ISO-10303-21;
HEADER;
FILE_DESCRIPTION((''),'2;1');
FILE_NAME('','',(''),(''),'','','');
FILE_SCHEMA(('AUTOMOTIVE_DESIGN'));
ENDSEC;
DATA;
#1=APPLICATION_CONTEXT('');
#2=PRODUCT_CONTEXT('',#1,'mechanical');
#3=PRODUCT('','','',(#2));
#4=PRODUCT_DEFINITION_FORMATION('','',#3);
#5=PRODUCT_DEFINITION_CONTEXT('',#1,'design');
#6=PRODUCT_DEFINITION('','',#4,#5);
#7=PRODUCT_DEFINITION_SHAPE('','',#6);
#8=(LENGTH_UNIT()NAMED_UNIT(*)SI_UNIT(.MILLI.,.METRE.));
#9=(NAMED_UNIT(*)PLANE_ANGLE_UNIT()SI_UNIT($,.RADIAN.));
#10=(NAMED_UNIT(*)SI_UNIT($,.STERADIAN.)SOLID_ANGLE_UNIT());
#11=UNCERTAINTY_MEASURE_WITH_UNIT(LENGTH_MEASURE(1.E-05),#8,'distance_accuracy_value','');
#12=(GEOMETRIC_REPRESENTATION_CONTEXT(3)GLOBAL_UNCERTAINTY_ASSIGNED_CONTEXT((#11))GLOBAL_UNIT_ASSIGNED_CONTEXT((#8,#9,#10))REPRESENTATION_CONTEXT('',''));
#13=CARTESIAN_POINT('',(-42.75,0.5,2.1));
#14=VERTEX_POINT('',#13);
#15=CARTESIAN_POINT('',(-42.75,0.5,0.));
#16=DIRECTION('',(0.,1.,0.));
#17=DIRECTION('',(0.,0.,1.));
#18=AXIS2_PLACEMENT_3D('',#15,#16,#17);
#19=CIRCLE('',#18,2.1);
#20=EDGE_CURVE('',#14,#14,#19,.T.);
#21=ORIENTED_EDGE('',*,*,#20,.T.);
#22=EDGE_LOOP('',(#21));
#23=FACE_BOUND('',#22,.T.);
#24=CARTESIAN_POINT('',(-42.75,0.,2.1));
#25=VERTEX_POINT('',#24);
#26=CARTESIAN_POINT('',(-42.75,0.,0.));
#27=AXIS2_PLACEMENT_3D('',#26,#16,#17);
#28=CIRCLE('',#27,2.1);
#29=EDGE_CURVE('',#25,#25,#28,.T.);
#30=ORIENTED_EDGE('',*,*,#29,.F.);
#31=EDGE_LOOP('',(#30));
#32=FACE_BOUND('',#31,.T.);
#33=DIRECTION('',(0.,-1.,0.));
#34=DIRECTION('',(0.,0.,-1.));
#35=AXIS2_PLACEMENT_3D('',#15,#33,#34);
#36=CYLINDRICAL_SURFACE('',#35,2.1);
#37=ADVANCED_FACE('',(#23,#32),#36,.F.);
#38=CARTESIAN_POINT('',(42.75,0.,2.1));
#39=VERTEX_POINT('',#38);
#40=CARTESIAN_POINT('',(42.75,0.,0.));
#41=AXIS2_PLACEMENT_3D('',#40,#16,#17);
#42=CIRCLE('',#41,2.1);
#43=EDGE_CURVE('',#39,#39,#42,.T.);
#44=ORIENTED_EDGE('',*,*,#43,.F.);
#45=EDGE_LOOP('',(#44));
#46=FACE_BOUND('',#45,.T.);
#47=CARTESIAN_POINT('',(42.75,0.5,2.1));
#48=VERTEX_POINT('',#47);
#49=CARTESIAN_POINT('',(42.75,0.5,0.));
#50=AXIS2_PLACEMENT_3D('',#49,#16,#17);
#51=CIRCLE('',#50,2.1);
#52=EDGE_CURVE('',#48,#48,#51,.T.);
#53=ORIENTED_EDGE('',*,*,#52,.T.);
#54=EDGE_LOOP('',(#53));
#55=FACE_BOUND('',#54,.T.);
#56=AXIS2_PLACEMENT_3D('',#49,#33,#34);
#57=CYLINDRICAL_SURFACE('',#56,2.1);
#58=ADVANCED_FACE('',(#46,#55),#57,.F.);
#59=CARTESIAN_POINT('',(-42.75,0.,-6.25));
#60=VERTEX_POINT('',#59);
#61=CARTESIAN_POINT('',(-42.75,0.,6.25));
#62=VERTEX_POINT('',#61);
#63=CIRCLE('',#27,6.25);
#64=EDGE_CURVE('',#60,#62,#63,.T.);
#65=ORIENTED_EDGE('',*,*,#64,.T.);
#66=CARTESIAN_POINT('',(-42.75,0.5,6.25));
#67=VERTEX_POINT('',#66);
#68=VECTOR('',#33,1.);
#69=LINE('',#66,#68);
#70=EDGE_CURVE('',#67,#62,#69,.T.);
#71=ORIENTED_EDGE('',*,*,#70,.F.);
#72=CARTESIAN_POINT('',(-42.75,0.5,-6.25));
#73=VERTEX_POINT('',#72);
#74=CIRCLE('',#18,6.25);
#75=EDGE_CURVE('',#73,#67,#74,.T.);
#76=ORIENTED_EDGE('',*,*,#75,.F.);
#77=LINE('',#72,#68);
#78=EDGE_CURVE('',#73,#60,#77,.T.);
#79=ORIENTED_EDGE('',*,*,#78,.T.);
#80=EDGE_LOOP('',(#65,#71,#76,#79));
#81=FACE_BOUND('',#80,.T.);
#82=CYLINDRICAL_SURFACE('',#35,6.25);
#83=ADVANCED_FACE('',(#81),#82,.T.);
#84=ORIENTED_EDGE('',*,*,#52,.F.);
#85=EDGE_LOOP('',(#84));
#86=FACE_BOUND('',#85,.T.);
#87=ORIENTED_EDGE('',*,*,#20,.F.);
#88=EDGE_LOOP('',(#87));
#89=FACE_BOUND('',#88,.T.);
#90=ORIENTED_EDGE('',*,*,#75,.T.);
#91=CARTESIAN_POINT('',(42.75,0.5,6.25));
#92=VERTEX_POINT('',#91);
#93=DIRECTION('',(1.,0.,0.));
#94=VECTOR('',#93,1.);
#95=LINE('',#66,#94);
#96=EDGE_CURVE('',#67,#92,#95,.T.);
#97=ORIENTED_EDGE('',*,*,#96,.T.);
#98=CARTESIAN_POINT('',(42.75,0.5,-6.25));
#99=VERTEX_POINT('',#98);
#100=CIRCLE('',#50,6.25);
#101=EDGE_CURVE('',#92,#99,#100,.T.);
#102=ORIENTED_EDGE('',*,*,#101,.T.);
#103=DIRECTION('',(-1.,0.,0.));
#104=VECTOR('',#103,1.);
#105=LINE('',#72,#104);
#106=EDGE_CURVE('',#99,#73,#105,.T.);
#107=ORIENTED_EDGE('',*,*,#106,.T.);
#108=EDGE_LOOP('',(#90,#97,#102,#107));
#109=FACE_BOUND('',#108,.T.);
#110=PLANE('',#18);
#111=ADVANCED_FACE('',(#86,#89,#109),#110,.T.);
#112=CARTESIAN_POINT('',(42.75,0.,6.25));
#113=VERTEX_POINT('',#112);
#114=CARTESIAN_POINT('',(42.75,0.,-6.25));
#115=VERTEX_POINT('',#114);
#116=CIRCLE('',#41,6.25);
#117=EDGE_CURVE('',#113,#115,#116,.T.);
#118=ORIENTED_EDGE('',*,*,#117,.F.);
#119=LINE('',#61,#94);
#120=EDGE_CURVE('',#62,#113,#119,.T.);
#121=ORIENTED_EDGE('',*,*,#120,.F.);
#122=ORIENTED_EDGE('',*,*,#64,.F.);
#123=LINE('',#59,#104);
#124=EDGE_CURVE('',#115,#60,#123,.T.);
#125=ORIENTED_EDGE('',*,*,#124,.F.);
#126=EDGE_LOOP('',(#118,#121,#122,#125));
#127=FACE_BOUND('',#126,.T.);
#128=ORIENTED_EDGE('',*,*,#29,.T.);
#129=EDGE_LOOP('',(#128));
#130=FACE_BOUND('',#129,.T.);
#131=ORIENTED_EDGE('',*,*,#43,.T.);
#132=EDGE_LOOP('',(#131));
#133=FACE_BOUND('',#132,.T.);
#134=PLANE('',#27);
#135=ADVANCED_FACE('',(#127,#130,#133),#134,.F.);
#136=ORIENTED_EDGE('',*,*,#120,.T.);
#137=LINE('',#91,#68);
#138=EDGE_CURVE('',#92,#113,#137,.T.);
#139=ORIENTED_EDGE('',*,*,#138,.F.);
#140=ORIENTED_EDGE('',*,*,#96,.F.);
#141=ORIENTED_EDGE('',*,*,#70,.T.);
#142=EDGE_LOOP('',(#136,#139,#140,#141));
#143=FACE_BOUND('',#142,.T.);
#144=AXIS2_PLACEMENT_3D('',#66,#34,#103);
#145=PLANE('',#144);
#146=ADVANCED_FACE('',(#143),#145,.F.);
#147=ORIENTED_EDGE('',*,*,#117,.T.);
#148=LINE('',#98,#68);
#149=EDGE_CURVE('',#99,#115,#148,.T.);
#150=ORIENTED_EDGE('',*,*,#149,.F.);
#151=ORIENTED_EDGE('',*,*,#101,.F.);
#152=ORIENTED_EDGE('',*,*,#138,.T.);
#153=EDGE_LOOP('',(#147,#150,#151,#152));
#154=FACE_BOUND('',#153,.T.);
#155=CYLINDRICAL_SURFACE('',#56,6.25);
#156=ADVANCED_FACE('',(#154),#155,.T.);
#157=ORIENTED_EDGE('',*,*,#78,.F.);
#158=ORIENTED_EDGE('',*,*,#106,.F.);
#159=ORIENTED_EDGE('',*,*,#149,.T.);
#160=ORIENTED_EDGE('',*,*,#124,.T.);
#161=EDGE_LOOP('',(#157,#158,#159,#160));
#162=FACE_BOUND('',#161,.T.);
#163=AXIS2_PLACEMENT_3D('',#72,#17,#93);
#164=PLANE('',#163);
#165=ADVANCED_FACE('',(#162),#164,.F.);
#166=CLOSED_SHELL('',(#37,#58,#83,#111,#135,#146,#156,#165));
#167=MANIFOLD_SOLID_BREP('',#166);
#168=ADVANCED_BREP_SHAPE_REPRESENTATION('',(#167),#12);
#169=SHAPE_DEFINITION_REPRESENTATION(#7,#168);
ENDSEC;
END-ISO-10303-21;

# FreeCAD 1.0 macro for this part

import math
import FreeCAD as App
import Part
import Sketcher
Q = App.Units.Quantity

doc = App.newDocument("Part")
body = doc.addObject("PartDesign::Body", "Body")

# Sketch on XZ plane
sketch1 = body.newObject("Sketcher::SketchObject", "Sketch")
sketch1.AttachmentSupport = (doc.getObject("XZ_Plane"), [""])
sketch1.MapMode = "FlatFace"
sketch1.addGeometry(Part.LineSegment(App.Vector(42.8, -6.2, 0), App.Vector(-42.8, -6.2, 0)), False)
sketch1.addGeometry(Part.ArcOfCircle(Part.Circle(App.Vector(-42.8, 0, 0), App.Vector(0, 0, 1), 6.2), math.radians(90), math.radians(270)), False)
sketch1.addGeometry(Part.LineSegment(App.Vector(-42.8, 6.2, 0), App.Vector(42.8, 6.2, 0)), False)
sketch1.addGeometry(Part.ArcOfCircle(Part.Circle(App.Vector(42.8, 0, 0), App.Vector(0, 0, 1), 6.2), math.radians(-90), math.radians(90)), False)
sketch1.addGeometry(Part.Circle(App.Vector(42.8, 0, 0), App.Vector(0, 0, 1), 2.1), False)
sketch1.addGeometry(Part.Circle(App.Vector(-42.8, 0, 0), App.Vector(0, 0, 1), 2.1), False)
sketch1.addConstraint(Sketcher.Constraint("Tangent", 0, 2, 1, 2))
sketch1.addConstraint(Sketcher.Constraint("Tangent", 1, 1, 2, 1))
sketch1.addConstraint(Sketcher.Constraint("Tangent", 2, 2, 3, 2))
sketch1.addConstraint(Sketcher.Constraint("Tangent", 3, 1, 0, 1))
sketch1.addConstraint(Sketcher.Constraint("Horizontal", 0))
sketch1.addConstraint(Sketcher.Constraint("Horizontal", 2))
sketch1.addConstraint(Sketcher.Constraint("Coincident", 4, 3, 3, 3))
sketch1.addConstraint(Sketcher.Constraint("Coincident", 5, 3, 1, 3))
sketch1.addConstraint(Sketcher.Constraint("Equal", 4, 5))
sketch1.addConstraint(Sketcher.Constraint("Symmetric", 1, 3, 3, 3, -1, 1))
sketch1.addConstraint(Sketcher.Constraint("Diameter", 4, Q("4.2 mm")))
sketch1.addConstraint(Sketcher.Constraint("Radius", 1, Q("6.25 mm")))
sketch1.addConstraint(Sketcher.Constraint("DistanceX", 0, 2, 0, 1, Q("85.5 mm")))
pad1 = body.newObject("PartDesign::Pad", "Pad")
pad1.Profile = sketch1
pad1.Length = 0.5
pad1.Reversed = True

doc.recompute()
